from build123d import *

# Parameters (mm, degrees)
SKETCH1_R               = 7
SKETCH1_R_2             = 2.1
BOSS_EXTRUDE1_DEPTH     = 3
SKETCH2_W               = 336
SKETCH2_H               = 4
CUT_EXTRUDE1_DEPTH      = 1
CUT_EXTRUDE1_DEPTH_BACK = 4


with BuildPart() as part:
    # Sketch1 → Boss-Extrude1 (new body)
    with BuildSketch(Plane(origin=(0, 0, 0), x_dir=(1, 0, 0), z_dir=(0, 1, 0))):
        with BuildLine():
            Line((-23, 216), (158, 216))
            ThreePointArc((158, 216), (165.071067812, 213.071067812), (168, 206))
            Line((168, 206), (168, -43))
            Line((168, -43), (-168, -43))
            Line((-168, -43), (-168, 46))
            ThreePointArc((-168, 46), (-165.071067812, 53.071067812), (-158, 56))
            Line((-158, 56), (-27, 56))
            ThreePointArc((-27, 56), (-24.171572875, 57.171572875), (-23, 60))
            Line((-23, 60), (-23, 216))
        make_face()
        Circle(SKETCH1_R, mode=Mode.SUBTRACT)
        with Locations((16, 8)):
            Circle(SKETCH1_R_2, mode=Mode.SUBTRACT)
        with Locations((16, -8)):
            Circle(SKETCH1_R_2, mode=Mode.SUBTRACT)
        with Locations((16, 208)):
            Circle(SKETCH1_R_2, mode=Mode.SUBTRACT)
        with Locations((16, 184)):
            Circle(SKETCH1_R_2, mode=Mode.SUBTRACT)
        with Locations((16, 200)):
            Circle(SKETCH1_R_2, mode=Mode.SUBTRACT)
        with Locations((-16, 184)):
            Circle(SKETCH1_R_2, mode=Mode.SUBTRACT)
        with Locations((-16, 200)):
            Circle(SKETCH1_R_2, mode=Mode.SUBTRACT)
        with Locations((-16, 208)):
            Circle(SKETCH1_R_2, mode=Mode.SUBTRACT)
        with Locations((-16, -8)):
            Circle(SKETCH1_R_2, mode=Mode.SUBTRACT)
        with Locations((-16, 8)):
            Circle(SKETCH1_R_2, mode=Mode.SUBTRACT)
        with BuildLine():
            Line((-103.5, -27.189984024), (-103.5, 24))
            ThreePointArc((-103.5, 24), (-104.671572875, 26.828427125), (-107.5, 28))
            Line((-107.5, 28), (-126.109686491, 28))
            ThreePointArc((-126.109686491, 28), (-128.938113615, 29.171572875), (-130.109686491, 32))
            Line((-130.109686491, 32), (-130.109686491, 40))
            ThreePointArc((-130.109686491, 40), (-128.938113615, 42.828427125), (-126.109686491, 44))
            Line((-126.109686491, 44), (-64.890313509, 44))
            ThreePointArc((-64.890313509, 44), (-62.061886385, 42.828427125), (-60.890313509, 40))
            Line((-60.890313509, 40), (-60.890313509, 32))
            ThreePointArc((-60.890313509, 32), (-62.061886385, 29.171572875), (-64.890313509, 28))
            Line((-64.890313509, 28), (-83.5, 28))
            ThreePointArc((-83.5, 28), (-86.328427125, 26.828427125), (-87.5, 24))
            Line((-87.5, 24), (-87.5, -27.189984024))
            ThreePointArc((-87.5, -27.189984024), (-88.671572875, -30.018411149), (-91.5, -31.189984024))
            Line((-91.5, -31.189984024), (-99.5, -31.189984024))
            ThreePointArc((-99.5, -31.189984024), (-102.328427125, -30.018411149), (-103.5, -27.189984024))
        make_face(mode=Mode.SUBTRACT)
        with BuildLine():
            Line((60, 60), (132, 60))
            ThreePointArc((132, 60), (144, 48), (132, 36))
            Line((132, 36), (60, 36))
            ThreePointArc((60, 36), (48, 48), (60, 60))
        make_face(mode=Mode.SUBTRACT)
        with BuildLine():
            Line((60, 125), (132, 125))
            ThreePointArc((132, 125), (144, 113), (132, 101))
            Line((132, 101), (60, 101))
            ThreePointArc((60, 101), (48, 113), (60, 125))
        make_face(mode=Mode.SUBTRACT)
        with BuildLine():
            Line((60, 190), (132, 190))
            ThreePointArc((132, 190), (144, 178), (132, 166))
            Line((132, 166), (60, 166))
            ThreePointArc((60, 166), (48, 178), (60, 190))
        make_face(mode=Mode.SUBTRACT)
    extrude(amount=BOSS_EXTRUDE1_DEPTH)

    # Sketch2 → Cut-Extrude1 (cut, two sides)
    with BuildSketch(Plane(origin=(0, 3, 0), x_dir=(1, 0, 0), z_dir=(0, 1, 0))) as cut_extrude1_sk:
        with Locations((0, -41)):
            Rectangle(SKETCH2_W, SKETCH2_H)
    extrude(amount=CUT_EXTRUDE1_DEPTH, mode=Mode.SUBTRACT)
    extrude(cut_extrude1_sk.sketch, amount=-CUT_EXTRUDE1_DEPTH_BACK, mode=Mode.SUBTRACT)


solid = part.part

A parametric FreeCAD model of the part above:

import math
import FreeCAD as App
import Part
import Sketcher

V = App.Vector
Q = App.Units.Quantity


def add_polygon(sketch, points):
    """Adds a closed chain of lines whose ends are joined by coincident constraints."""
    first, n = sketch.GeometryCount, len(points)
    for a, b in zip(points, points[1:] + points[:1]):
        sketch.addGeometry(Part.LineSegment(App.Vector(*a, 0), App.Vector(*b, 0)), False)
    for i in range(n):
        sketch.addConstraint(Sketcher.Constraint("Coincident", first + i, 2, first + (i + 1) % n, 1))

doc = App.newDocument("Part")
params = doc.addObject("Spreadsheet::Sheet", "Params")
for row, (alias, value) in enumerate([
    ("sketch1_diameter", "14 mm"),
    ("sketch1_radius", "4 mm"),
    ("sketch1_radius2", "10 mm"),
    ("sketch1_radius3", "12 mm"),
    ("sketch1_diameter2", "4.2 mm"),
    ("pad1_length", "3 mm"),
    ("sketch2_width", "336 mm"),
    ("sketch2_height", "4 mm"),
], start=1):
    params.set(f"A{row}", alias)
    params.set(f"B{row}", "=" + value)
    params.setAlias(f"B{row}", alias)

body = doc.addObject("PartDesign::Body", "Body")

# Sketch on XZ plane
sketch1 = doc.addObject("Sketcher::SketchObject", "Sketch")
body.addObject(sketch1)
sketch1.AttachmentSupport = (doc.XZ_Plane, [""])
sketch1.MapMode = "FlatFace"
sketch1.addGeometry(Part.LineSegment(V(158, -216, 0), V(-23, -216, 0)), False)
sketch1.addGeometry(Part.LineSegment(V(-23, -216, 0), V(-23, -60, 0)), False)
sketch1.addGeometry(Part.ArcOfCircle(Part.Circle(V(-27, -60, 0), V(0, 0, 1), 4), math.radians(0), math.radians(90)), False)
sketch1.addGeometry(Part.LineSegment(V(-27, -56, 0), V(-158, -56, 0)), False)
sketch1.addGeometry(Part.ArcOfCircle(Part.Circle(V(-158, -46, 0), V(0, 0, 1), 10), math.radians(180), math.radians(270)), False)
sketch1.addGeometry(Part.LineSegment(V(-168, -46, 0), V(-168, 43, 0)), False)
sketch1.addGeometry(Part.LineSegment(V(-168, 43, 0), V(168, 43, 0)), False)
sketch1.addGeometry(Part.LineSegment(V(168, 43, 0), V(168, -206, 0)), False)
sketch1.addGeometry(Part.ArcOfCircle(Part.Circle(V(158, -206, 0), V(0, 0, 1), 10), math.radians(-90), math.radians(0)), False)
sketch1.addGeometry(Part.Circle(V(16, 8, 0), V(0, 0, 1), 2.1), False)
sketch1.addGeometry(Part.Circle(V(16, -8, 0), V(0, 0, 1), 2.1), False)
sketch1.addGeometry(Part.LineSegment(V(60, -60, 0), V(132, -60, 0)), False)
sketch1.addGeometry(Part.ArcOfCircle(Part.Circle(V(132, -48, 0), V(0, 0, 1), 12), math.radians(-90), math.radians(90)), False)
sketch1.addGeometry(Part.LineSegment(V(132, -36, 0), V(60, -36, 0)), False)
sketch1.addGeometry(Part.ArcOfCircle(Part.Circle(V(60, -48, 0), V(0, 0, 1), 12), math.radians(90), math.radians(270)), False)
sketch1.addGeometry(Part.Circle(V(-16, 8, 0), V(0, 0, 1), 2.1), False)
sketch1.addGeometry(Part.Circle(V(0, 0, 0), V(0, 0, 1), 7), False)
sketch1.addGeometry(Part.Circle(V(-16, -8, 0), V(0, 0, 1), 2.1), False)
sketch1.addGeometry(Part.LineSegment(V(-103.5, 27.2, 0), V(-103.5, -24, 0)), False)
sketch1.addGeometry(Part.ArcOfCircle(Part.Circle(V(-107.5, -24, 0), V(0, 0, 1), 4), math.radians(-90), math.radians(0)), False)
sketch1.addGeometry(Part.LineSegment(V(-107.5, -28, 0), V(-126.1, -28, 0)), False)
sketch1.addGeometry(Part.ArcOfCircle(Part.Circle(V(-126.1, -32, 0), V(0, 0, 1), 4), math.radians(90), math.radians(180)), False)
sketch1.addGeometry(Part.LineSegment(V(-130.1, -32, 0), V(-130.1, -40, 0)), False)
sketch1.addGeometry(Part.ArcOfCircle(Part.Circle(V(-126.1, -40, 0), V(0, 0, 1), 4), math.radians(-180), math.radians(-90)), False)
sketch1.addGeometry(Part.LineSegment(V(-126.1, -44, 0), V(-64.9, -44, 0)), False)
sketch1.addGeometry(Part.ArcOfCircle(Part.Circle(V(-64.9, -40, 0), V(0, 0, 1), 4), math.radians(-90), math.radians(0)), False)
sketch1.addGeometry(Part.LineSegment(V(-60.9, -40, 0), V(-60.9, -32, 0)), False)
sketch1.addGeometry(Part.ArcOfCircle(Part.Circle(V(-64.9, -32, 0), V(0, 0, 1), 4), math.radians(0), math.radians(90)), False)
sketch1.addGeometry(Part.LineSegment(V(-64.9, -28, 0), V(-83.5, -28, 0)), False)
sketch1.addGeometry(Part.ArcOfCircle(Part.Circle(V(-83.5, -24, 0), V(0, 0, 1), 4), math.radians(180), math.radians(270)), False)
sketch1.addGeometry(Part.LineSegment(V(-87.5, -24, 0), V(-87.5, 27.2, 0)), False)
sketch1.addGeometry(Part.ArcOfCircle(Part.Circle(V(-91.5, 27.2, 0), V(0, 0, 1), 4), math.radians(0), math.radians(90)), False)
sketch1.addGeometry(Part.LineSegment(V(-91.5, 31.2, 0), V(-99.5, 31.2, 0)), False)
sketch1.addGeometry(Part.ArcOfCircle(Part.Circle(V(-99.5, 27.2, 0), V(0, 0, 1), 4), math.radians(90), math.radians(180)), False)
sketch1.addGeometry(Part.LineSegment(V(60, -125, 0), V(132, -125, 0)), False)
sketch1.addGeometry(Part.ArcOfCircle(Part.Circle(V(132, -113, 0), V(0, 0, 1), 12), math.radians(-90), math.radians(90)), False)
sketch1.addGeometry(Part.LineSegment(V(132, -101, 0), V(60, -101, 0)), False)
sketch1.addGeometry(Part.ArcOfCircle(Part.Circle(V(60, -113, 0), V(0, 0, 1), 12), math.radians(90), math.radians(270)), False)
sketch1.addGeometry(Part.LineSegment(V(60, -190, 0), V(132, -190, 0)), False)
sketch1.addGeometry(Part.ArcOfCircle(Part.Circle(V(132, -178, 0), V(0, 0, 1), 12), math.radians(-90), math.radians(90)), False)
sketch1.addGeometry(Part.LineSegment(V(132, -166, 0), V(60, -166, 0)), False)
sketch1.addGeometry(Part.ArcOfCircle(Part.Circle(V(60, -178, 0), V(0, 0, 1), 12), math.radians(90), math.radians(270)), False)
sketch1.addGeometry(Part.Circle(V(16, -184, 0), V(0, 0, 1), 2.1), False)
sketch1.addGeometry(Part.Circle(V(16, -200, 0), V(0, 0, 1), 2.1), False)
sketch1.addGeometry(Part.Circle(V(16, -208, 0), V(0, 0, 1), 2.1), False)
sketch1.addGeometry(Part.Circle(V(-16, -184, 0), V(0, 0, 1), 2.1), False)
sketch1.addGeometry(Part.Circle(V(-16, -200, 0), V(0, 0, 1), 2.1), False)
sketch1.addGeometry(Part.Circle(V(-16, -208, 0), V(0, 0, 1), 2.1), False)
sketch1.addConstraint(Sketcher.Constraint("Coincident", 0, 2, 1, 1))
sketch1.addConstraint(Sketcher.Constraint("Tangent", 1, 2, 2, 1))
sketch1.addConstraint(Sketcher.Constraint("Tangent", 2, 2, 3, 1))
sketch1.addConstraint(Sketcher.Constraint("Tangent", 3, 2, 4, 2))
sketch1.addConstraint(Sketcher.Constraint("Tangent", 4, 1, 5, 1))
sketch1.addConstraint(Sketcher.Constraint("Coincident", 5, 2, 6, 1))
sketch1.addConstraint(Sketcher.Constraint("Coincident", 6, 2, 7, 1))
sketch1.addConstraint(Sketcher.Constraint("Tangent", 7, 2, 8, 2))
sketch1.addConstraint(Sketcher.Constraint("Tangent", 8, 1, 0, 1))
sketch1.addConstraint(Sketcher.Constraint("Tangent", 11, 2, 12, 1))
sketch1.addConstraint(Sketcher.Constraint("Tangent", 12, 2, 13, 1))
sketch1.addConstraint(Sketcher.Constraint("Tangent", 13, 2, 14, 1))
sketch1.addConstraint(Sketcher.Constraint("Tangent", 14, 2, 11, 1))
sketch1.addConstraint(Sketcher.Constraint("Tangent", 18, 2, 19, 2))
sketch1.addConstraint(Sketcher.Constraint("Tangent", 19, 1, 20, 1))
sketch1.addConstraint(Sketcher.Constraint("Tangent", 20, 2, 21, 1))
sketch1.addConstraint(Sketcher.Constraint("Tangent", 21, 2, 22, 1))
sketch1.addConstraint(Sketcher.Constraint("Tangent", 22, 2, 23, 1))
sketch1.addConstraint(Sketcher.Constraint("Tangent", 23, 2, 24, 1))
sketch1.addConstraint(Sketcher.Constraint("Tangent", 24, 2, 25, 1))
sketch1.addConstraint(Sketcher.Constraint("Tangent", 25, 2, 26, 1))
sketch1.addConstraint(Sketcher.Constraint("Tangent", 26, 2, 27, 1))
sketch1.addConstraint(Sketcher.Constraint("Tangent", 27, 2, 28, 1))
sketch1.addConstraint(Sketcher.Constraint("Tangent", 28, 2, 29, 2))
sketch1.addConstraint(Sketcher.Constraint("Tangent", 29, 1, 30, 1))
sketch1.addConstraint(Sketcher.Constraint("Tangent", 30, 2, 31, 1))
sketch1.addConstraint(Sketcher.Constraint("Tangent", 31, 2, 32, 1))
sketch1.addConstraint(Sketcher.Constraint("Tangent", 32, 2, 33, 1))
sketch1.addConstraint(Sketcher.Constraint("Tangent", 33, 2, 18, 1))
sketch1.addConstraint(Sketcher.Constraint("Tangent", 34, 2, 35, 1))
sketch1.addConstraint(Sketcher.Constraint("Tangent", 35, 2, 36, 1))
sketch1.addConstraint(Sketcher.Constraint("Tangent", 36, 2, 37, 1))
sketch1.addConstraint(Sketcher.Constraint("Tangent", 37, 2, 34, 1))
sketch1.addConstraint(Sketcher.Constraint("Tangent", 38, 2, 39, 1))
sketch1.addConstraint(Sketcher.Constraint("Tangent", 39, 2, 40, 1))
sketch1.addConstraint(Sketcher.Constraint("Tangent", 40, 2, 41, 1))
sketch1.addConstraint(Sketcher.Constraint("Tangent", 41, 2, 38, 1))
sketch1.addConstraint(Sketcher.Constraint("Horizontal", 0))
sketch1.addConstraint(Sketcher.Constraint("Vertical", 1))
sketch1.addConstraint(Sketcher.Constraint("Horizontal", 3))
sketch1.addConstraint(Sketcher.Constraint("Vertical", 5))
sketch1.addConstraint(Sketcher.Constraint("Horizontal", 6))
sketch1.addConstraint(Sketcher.Constraint("Vertical", 7))
sketch1.addConstraint(Sketcher.Constraint("Horizontal", 11))
sketch1.addConstraint(Sketcher.Constraint("Horizontal", 13))
sketch1.addConstraint(Sketcher.Constraint("Vertical", 18))
sketch1.addConstraint(Sketcher.Constraint("Horizontal", 20))
sketch1.addConstraint(Sketcher.Constraint("Vertical", 22))
sketch1.addConstraint(Sketcher.Constraint("Horizontal", 24))
sketch1.addConstraint(Sketcher.Constraint("Vertical", 26))
sketch1.addConstraint(Sketcher.Constraint("Horizontal", 28))
sketch1.addConstraint(Sketcher.Constraint("Vertical", 30))
sketch1.addConstraint(Sketcher.Constraint("Horizontal", 32))
sketch1.addConstraint(Sketcher.Constraint("Horizontal", 34))
sketch1.addConstraint(Sketcher.Constraint("Horizontal", 36))
sketch1.addConstraint(Sketcher.Constraint("Horizontal", 38))
sketch1.addConstraint(Sketcher.Constraint("Horizontal", 40))
sketch1.addConstraint(Sketcher.Constraint("Coincident", 16, 3, -1, 1))
sketch1.addConstraint(Sketcher.Constraint("Equal", 4, 8))
sketch1.addConstraint(Sketcher.Constraint("Equal", 9, 10))
sketch1.addConstraint(Sketcher.Constraint("Equal", 10, 15))
sketch1.addConstraint(Sketcher.Constraint("Equal", 15, 17))
sketch1.addConstraint(Sketcher.Constraint("Equal", 2, 19))
sketch1.addConstraint(Sketcher.Constraint("Equal", 19, 21))
sketch1.addConstraint(Sketcher.Constraint("Equal", 21, 23))
sketch1.addConstraint(Sketcher.Constraint("Equal", 23, 25))
sketch1.addConstraint(Sketcher.Constraint("Equal", 25, 27))
sketch1.addConstraint(Sketcher.Constraint("Equal", 27, 29))
sketch1.addConstraint(Sketcher.Constraint("Equal", 29, 31))
sketch1.addConstraint(Sketcher.Constraint("Equal", 31, 33))
sketch1.addConstraint(Sketcher.Constraint("Equal", 14, 35))
sketch1.addConstraint(Sketcher.Constraint("Equal", 37, 39))
sketch1.addConstraint(Sketcher.Constraint("Equal", 17, 42))
sketch1.addConstraint(Sketcher.Constraint("Equal", 42, 43))
sketch1.addConstraint(Sketcher.Constraint("Equal", 43, 44))
sketch1.addConstraint(Sketcher.Constraint("Equal", 44, 45))
sketch1.addConstraint(Sketcher.Constraint("Equal", 45, 46))
sketch1.addConstraint(Sketcher.Constraint("Equal", 46, 47))
sketch1.addConstraint(Sketcher.Constraint("Symmetric", 10, 3, 15, 3, -1, 1))
sketch1.addConstraint(Sketcher.Constraint("Symmetric", 9, 3, 17, 3, -1, 1))
sketch1.addConstraint(Sketcher.Constraint("Symmetric", 9, 3, 15, 3, -2))
sketch1.addConstraint(Sketcher.Constraint("Symmetric", 42, 3, 45, 3, -2))
sketch1.addConstraint(Sketcher.Constraint("Symmetric", 43, 3, 46, 3, -2))
sketch1.addConstraint(Sketcher.Constraint("Symmetric", 44, 3, 47, 3, -2))
sketch1.addConstraint(Sketcher.Constraint("Horizontal", 21, 3, 27, 3))
sketch1.addConstraint(Sketcher.Constraint("Horizontal", 1, 2, 11, 2))
sketch1.addConstraint(Sketcher.Constraint("Vertical", 12, 3, 35, 3))
sketch1.addConstraint(Sketcher.Constraint("Vertical", 14, 3, 37, 3))
sketch1.addConstraint(Sketcher.Constraint("Vertical", 35, 3, 39, 3))
sketch1.addConstraint(Sketcher.Constraint("Vertical", 37, 3, 41, 3))
sketch1.addConstraint(Sketcher.Constraint("Vertical", 10, 3, 42, 3))
sketch1.addConstraint(Sketcher.Constraint("Vertical", 42, 3, 43, 3))
sketch1.addConstraint(Sketcher.Constraint("Vertical", 43, 3, 44, 3))
sketch1.addConstraint(Sketcher.Constraint("Equal", 20, 28))
sketch1.addConstraint(Sketcher.Constraint("Equal", 32, 22))
sketch1.addConstraint(Sketcher.Constraint("Diameter", 16, Q("14 mm")))
sketch1.addConstraint(Sketcher.Constraint("Radius", 2, Q("4 mm")))
sketch1.addConstraint(Sketcher.Constraint("Radius", 4, Q("10 mm")))
sketch1.addConstraint(Sketcher.Constraint("Radius", 12, Q("12 mm")))
sketch1.addConstraint(Sketcher.Constraint("Diameter", 9, Q("4.2 mm")))
sketch1.addConstraint(Sketcher.Constraint("DistanceX", 0, 2, 0, 1, Q("181 mm")))
sketch1.addConstraint(Sketcher.Constraint("DistanceX", 3, 2, 3, 1, Q("131 mm")))
sketch1.addConstraint(Sketcher.Constraint("DistanceX", 11, 1, 11, 2, Q("72 mm")))
sketch1.addConstraint(Sketcher.Constraint("DistanceX", 32, 2, 32, 1, Q("8 mm")))
sketch1.addConstraint(Sketcher.Constraint("DistanceY", 1, 1, 1, 2, Q("156 mm")))
sketch1.addConstraint(Sketcher.Constraint("DistanceY", 5, 1, 5, 2, Q("89 mm")))
sketch1.addConstraint(Sketcher.Constraint("DistanceX", 2, 3, -1, 1, Q("27 mm")))
sketch1.addConstraint(Sketcher.Constraint("DistanceY", 2, 3, -1, 1, Q("60 mm")))
sketch1.addConstraint(Sketcher.Constraint("DistanceX", -1, 1, 9, 3, Q("16 mm")))
sketch1.addConstraint(Sketcher.Constraint("DistanceY", -1, 1, 9, 3, Q("8 mm")))
sketch1.addConstraint(Sketcher.Constraint("DistanceX", -1, 1, 12, 3, Q("132 mm")))
sketch1.addConstraint(Sketcher.Constraint("DistanceY", 19, 3, -1, 1, Q("24 mm")))
sketch1.addConstraint(Sketcher.Constraint("DistanceY", 35, 3, -1, 1, Q("113 mm")))
sketch1.addConstraint(Sketcher.Constraint("DistanceY", 39, 3, -1, 1, Q("178 mm")))
sketch1.addConstraint(Sketcher.Constraint("DistanceY", 42, 3, -1, 1, Q("184 mm")))
sketch1.addConstraint(Sketcher.Constraint("DistanceY", 43, 3, -1, 1, Q("200 mm")))
sketch1.addConstraint(Sketcher.Constraint("DistanceY", 44, 3, -1, 1, Q("208 mm")))
sketch1.addConstraint(Sketcher.Constraint("DistanceX", 19, 3, -1, 1, Q("107.5 mm")))
sketch1.addConstraint(Sketcher.Constraint("DistanceX", 20, 2, 20, 1, Q("18.609686 mm")))
sketch1.addConstraint(Sketcher.Constraint("DistanceY", 18, 2, 18, 1, Q("51.189984 mm")))
sketch1.setExpression("Constraints[95]", "Params.sketch1_diameter")
sketch1.setExpression("Constraints[96]", "Params.sketch1_radius")
sketch1.setExpression("Constraints[97]", "Params.sketch1_radius2")
sketch1.setExpression("Constraints[98]", "Params.sketch1_radius3")
sketch1.setExpression("Constraints[99]", "Params.sketch1_diameter2")
pad1 = doc.addObject("PartDesign::Pad", "Pad")
body.addObject(pad1)
pad1.Profile = sketch1
pad1.setExpression("Length", "Params.pad1_length")
pad1.Reversed = True

# Sketch on XZ plane
sketch2 = doc.addObject("Sketcher::SketchObject", "Sketch001")
body.addObject(sketch2)
sketch2.AttachmentSupport = (doc.XZ_Plane, [""])
sketch2.MapMode = "FlatFace"
sketch2.AttachmentOffset = App.Placement(V(0, 0, -3), App.Rotation())
add_polygon(sketch2, [(-168, 39), (-168, 43), (168, 43), (168, 39)])  # lines 0-3
sketch2.addConstraint(Sketcher.Constraint("Vertical", 0))
sketch2.addConstraint(Sketcher.Constraint("Horizontal", 1))
sketch2.addConstraint(Sketcher.Constraint("Vertical", 2))
sketch2.addConstraint(Sketcher.Constraint("Horizontal", 3))
sketch2.addConstraint(Sketcher.Constraint("DistanceX", 1, 1, 1, 2, Q("336 mm")))
sketch2.addConstraint(Sketcher.Constraint("DistanceY", 0, 1, 0, 2, Q("4 mm")))
sketch2.addConstraint(Sketcher.Constraint("DistanceX", 0, 2, -1, 1, Q("168 mm")))
sketch2.addConstraint(Sketcher.Constraint("DistanceY", -1, 1, 0, 2, Q("43 mm")))
sketch2.setExpression("Constraints[8]", "Params.sketch2_width")
sketch2.setExpression("Constraints[9]", "Params.sketch2_height")
pocket1 = doc.addObject("PartDesign::Pocket", "Pocket")
body.addObject(pocket1)
pocket1.Profile = sketch2
pocket1.Type = "ThroughAll"
pocket1.Midplane = True

doc.recompute()
